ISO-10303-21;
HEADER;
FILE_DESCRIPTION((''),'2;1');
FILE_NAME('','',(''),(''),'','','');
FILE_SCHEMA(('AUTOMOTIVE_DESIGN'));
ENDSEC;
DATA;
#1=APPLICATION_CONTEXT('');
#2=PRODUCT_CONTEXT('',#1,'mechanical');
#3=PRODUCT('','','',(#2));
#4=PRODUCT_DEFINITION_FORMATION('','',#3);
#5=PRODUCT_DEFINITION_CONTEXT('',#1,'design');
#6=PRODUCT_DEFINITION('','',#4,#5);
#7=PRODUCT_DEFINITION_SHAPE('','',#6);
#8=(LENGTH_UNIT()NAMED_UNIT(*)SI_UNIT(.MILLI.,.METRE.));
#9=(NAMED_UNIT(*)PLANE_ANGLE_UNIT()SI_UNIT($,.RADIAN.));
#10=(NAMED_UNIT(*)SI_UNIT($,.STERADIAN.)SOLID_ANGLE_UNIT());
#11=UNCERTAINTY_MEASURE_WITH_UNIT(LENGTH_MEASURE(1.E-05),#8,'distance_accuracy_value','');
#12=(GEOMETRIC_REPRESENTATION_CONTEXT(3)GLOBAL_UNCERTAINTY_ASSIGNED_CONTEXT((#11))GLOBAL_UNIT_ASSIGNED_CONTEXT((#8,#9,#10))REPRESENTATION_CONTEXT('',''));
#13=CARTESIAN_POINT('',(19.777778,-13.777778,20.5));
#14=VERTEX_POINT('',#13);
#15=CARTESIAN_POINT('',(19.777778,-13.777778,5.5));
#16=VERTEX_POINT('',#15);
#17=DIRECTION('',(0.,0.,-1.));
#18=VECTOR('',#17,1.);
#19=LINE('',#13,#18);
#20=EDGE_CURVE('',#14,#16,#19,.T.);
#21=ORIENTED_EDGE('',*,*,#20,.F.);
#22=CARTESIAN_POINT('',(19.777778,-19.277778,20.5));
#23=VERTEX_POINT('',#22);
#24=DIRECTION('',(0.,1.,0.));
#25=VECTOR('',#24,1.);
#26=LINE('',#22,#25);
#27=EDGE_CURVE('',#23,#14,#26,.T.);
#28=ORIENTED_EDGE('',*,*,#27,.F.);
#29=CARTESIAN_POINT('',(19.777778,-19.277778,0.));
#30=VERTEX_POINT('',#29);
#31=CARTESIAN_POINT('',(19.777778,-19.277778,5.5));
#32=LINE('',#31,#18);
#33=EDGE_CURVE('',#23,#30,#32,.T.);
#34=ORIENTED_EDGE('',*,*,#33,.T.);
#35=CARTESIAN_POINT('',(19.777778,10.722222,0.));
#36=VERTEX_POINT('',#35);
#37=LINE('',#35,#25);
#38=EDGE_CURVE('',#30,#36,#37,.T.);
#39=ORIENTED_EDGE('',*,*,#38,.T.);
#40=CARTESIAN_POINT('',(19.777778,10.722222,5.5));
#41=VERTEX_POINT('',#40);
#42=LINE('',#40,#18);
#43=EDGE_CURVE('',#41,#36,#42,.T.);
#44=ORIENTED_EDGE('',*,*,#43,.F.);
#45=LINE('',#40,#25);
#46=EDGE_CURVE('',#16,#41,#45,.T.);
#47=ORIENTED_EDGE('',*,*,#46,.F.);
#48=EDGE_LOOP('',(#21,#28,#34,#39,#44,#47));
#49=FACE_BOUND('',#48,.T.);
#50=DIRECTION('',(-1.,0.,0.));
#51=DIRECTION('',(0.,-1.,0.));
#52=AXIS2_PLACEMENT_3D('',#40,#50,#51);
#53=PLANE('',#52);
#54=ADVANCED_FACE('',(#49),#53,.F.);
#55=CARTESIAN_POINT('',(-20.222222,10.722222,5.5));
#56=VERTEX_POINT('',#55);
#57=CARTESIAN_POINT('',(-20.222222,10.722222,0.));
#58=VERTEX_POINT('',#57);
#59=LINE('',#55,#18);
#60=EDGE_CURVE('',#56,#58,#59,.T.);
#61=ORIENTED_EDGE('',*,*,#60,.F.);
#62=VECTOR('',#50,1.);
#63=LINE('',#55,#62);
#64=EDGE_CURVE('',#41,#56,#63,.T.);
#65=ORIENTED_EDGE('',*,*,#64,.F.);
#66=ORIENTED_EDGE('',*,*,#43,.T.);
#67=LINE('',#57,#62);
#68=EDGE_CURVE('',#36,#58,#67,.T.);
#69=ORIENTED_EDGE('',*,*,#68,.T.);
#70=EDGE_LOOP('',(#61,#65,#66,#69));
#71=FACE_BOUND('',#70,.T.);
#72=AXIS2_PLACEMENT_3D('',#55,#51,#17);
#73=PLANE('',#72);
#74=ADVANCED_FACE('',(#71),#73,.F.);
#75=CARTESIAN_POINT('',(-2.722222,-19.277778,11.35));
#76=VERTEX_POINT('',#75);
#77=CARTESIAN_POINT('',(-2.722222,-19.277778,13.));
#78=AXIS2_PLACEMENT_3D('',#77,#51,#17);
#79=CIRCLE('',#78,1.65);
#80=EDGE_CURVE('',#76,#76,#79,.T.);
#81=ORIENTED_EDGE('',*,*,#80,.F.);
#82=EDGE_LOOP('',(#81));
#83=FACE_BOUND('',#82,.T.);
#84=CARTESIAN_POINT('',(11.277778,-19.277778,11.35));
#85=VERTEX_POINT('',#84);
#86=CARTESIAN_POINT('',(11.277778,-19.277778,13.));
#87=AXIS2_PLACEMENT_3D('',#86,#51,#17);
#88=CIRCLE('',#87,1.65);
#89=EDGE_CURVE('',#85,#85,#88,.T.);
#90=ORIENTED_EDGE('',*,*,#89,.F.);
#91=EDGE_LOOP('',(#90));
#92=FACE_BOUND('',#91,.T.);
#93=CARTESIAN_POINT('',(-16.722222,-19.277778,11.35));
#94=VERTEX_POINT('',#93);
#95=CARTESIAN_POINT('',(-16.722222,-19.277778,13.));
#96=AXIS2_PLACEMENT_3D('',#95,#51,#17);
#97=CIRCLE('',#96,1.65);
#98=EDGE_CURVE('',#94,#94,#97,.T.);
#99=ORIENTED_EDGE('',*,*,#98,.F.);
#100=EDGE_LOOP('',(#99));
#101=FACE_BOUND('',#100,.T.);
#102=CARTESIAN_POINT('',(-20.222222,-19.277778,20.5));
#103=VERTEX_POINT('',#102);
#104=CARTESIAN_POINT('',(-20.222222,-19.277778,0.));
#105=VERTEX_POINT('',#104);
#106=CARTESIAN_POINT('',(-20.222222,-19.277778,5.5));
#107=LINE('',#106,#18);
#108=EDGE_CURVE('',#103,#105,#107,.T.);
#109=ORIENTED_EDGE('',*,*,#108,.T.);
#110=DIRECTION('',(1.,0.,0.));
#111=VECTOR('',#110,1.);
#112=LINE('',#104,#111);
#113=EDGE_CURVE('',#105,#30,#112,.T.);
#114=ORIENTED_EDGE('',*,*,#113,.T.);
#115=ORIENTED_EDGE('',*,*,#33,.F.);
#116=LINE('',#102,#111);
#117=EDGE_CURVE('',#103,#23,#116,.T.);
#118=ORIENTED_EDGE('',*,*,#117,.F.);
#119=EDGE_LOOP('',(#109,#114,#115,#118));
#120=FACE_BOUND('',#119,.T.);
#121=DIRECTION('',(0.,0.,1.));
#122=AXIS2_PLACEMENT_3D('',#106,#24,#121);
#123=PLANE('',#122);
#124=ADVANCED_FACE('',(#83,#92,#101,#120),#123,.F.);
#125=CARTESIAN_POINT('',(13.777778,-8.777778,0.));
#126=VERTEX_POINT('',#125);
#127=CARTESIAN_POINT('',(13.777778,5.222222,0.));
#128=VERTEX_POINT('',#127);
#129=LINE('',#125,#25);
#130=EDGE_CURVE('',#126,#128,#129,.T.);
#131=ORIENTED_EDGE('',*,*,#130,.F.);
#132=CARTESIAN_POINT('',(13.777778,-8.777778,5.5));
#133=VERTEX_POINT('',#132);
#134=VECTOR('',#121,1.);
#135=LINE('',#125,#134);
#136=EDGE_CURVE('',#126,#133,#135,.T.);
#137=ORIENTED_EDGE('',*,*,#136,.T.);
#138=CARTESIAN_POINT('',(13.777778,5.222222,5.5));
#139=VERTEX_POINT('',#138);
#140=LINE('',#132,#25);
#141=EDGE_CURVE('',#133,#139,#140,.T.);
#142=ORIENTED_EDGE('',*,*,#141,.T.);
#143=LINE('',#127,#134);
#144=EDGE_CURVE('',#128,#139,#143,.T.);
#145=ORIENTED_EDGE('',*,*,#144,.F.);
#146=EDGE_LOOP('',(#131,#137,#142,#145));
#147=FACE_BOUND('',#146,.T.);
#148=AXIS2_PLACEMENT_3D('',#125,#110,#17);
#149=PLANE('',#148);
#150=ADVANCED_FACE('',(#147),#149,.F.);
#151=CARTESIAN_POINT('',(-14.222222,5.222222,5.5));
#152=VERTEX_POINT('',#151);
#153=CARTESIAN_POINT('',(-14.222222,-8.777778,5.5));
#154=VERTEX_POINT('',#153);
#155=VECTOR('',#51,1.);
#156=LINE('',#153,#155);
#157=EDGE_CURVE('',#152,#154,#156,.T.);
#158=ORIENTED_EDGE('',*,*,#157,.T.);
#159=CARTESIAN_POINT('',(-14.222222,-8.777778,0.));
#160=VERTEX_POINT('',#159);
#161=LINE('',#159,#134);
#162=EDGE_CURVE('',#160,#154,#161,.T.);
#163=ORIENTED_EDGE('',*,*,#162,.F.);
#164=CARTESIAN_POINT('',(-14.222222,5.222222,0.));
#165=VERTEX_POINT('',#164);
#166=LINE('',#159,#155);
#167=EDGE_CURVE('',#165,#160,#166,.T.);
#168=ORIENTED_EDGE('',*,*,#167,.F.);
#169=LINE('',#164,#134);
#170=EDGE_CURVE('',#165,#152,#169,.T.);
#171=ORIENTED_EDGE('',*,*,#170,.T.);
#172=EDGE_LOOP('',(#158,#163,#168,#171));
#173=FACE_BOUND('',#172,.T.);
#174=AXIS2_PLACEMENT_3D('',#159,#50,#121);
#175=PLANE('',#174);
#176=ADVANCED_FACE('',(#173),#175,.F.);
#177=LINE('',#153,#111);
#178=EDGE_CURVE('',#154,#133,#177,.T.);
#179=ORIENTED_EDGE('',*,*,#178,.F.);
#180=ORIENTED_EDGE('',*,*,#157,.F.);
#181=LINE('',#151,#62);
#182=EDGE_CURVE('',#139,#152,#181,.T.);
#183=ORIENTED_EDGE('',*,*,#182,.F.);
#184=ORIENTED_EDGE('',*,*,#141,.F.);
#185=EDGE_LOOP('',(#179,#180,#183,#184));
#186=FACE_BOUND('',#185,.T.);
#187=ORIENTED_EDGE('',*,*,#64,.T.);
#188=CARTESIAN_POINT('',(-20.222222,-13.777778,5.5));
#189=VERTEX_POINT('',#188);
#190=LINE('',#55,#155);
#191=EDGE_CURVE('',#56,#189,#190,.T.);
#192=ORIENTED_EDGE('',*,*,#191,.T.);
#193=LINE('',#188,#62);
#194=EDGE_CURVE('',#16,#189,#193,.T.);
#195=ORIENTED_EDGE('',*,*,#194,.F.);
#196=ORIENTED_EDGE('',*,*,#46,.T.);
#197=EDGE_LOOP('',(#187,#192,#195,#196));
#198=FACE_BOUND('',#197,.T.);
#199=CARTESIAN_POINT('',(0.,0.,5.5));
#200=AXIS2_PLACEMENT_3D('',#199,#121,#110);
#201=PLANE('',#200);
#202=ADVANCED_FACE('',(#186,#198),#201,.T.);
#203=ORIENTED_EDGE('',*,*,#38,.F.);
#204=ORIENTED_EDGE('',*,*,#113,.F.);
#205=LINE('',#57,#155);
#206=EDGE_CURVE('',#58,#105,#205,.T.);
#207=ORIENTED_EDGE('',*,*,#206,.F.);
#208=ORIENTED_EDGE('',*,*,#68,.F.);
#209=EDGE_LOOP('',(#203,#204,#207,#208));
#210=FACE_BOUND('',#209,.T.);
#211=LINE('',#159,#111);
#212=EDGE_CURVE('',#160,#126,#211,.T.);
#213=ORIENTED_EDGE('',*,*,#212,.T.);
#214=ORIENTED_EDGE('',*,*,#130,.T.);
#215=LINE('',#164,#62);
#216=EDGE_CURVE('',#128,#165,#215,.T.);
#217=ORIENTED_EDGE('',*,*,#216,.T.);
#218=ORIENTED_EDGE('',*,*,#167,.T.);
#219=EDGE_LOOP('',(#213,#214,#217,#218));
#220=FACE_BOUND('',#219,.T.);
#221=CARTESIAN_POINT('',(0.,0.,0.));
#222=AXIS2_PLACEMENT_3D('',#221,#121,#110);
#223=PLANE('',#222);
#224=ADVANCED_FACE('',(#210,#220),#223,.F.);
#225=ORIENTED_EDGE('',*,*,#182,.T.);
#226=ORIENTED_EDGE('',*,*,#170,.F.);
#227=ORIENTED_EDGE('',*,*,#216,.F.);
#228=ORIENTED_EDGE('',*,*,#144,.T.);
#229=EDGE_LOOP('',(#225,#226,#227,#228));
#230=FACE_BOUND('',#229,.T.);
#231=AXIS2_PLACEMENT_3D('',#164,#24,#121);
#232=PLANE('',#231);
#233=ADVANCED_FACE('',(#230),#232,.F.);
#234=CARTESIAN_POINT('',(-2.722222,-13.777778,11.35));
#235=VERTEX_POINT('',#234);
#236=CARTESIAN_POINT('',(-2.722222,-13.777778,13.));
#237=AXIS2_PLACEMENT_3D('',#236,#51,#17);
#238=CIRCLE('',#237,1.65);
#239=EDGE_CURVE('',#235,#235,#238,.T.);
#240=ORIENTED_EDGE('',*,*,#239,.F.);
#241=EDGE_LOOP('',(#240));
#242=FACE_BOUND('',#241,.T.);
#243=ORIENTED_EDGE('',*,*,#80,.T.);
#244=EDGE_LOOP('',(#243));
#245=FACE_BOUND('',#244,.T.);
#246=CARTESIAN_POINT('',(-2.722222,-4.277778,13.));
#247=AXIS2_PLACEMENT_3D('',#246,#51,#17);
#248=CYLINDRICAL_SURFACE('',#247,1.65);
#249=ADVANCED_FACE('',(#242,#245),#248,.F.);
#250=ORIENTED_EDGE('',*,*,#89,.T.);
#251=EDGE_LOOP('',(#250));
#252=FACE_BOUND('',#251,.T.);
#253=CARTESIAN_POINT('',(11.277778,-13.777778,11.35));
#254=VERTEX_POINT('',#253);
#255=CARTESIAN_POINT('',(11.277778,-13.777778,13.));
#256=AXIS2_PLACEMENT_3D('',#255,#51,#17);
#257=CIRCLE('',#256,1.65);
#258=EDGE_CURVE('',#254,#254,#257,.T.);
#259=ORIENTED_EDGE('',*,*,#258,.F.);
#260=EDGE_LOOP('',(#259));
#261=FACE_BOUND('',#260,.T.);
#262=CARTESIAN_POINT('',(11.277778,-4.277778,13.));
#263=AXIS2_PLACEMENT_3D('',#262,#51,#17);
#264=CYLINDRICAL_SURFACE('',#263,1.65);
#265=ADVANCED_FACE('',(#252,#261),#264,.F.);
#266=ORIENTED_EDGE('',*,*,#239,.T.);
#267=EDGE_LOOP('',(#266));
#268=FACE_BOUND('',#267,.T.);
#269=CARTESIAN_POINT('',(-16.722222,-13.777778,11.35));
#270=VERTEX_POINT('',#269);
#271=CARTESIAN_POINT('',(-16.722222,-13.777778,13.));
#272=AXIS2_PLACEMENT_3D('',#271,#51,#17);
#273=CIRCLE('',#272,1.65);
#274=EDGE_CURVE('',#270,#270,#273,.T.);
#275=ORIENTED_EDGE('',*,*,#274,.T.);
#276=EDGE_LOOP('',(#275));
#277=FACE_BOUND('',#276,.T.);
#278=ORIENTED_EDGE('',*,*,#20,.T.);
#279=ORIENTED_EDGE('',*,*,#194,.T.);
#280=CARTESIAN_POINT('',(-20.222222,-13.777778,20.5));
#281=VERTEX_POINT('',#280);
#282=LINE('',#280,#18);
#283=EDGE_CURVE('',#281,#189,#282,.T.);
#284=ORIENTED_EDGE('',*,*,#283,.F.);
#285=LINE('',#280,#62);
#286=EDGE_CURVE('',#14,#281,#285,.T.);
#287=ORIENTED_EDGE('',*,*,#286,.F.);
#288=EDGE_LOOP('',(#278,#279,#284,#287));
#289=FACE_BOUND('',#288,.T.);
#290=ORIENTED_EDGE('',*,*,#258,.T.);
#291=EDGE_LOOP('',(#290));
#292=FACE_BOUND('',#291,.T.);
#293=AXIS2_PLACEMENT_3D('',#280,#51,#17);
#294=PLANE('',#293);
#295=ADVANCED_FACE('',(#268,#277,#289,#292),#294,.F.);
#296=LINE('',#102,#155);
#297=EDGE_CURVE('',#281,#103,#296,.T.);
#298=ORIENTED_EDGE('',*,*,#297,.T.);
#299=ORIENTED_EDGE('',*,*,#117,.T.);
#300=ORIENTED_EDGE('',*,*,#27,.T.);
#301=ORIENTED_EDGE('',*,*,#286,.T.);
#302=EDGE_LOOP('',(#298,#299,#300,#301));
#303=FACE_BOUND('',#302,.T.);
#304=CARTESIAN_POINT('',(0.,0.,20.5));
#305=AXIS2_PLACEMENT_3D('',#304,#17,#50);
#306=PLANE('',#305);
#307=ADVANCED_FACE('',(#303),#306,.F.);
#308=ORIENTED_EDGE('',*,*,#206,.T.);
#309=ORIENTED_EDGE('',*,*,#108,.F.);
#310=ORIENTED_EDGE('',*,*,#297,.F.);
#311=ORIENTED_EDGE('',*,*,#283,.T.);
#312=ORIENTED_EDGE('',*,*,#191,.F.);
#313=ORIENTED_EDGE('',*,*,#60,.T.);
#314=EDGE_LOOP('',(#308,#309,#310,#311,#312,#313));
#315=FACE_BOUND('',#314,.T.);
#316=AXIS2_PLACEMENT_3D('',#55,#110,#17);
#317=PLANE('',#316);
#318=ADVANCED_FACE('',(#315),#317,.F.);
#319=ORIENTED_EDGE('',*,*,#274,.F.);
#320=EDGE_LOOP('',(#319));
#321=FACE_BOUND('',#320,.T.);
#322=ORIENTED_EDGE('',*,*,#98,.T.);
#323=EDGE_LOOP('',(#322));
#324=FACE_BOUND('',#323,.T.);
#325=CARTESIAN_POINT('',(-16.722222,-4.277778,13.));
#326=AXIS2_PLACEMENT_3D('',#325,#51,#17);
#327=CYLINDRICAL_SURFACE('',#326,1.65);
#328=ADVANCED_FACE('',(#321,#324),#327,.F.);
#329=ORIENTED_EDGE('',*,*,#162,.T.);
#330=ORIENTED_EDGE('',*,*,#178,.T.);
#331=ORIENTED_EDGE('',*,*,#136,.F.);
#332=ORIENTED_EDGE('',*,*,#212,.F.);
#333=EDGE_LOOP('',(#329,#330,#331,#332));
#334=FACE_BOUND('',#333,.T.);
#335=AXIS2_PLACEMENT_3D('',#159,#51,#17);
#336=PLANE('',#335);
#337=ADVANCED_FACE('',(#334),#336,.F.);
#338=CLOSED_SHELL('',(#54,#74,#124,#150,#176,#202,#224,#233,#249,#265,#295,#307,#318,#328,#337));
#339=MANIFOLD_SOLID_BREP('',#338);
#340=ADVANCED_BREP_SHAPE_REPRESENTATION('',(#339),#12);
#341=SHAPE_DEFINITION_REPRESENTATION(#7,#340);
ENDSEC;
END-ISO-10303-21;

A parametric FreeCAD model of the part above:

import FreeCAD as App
import Part
import Sketcher
Q = App.Units.Quantity


def add_polygon(sketch, points):
    """Adds a closed chain of lines whose ends are joined by coincident constraints."""
    first, n = sketch.GeometryCount, len(points)
    for a, b in zip(points, points[1:] + points[:1]):
        sketch.addGeometry(Part.LineSegment(App.Vector(*a, 0), App.Vector(*b, 0)), False)
    for i in range(n):
        sketch.addConstraint(Sketcher.Constraint("Coincident", first + i, 2, first + (i + 1) % n, 1))

doc = App.newDocument("Part")
body = doc.addObject("PartDesign::Body", "Body")

sketch1 = body.newObject("Sketcher::SketchObject", "Sketch")
sketch1.AttachmentSupport = (doc.getObject("XY_Plane"), [""])
sketch1.MapMode = "FlatFace"
add_polygon(sketch1, [(-20.222222, 10.722222), (-20.222222, -19.277778), (19.777778, -19.277778), (19.777778, 10.722222)])
sketch1.addConstraint([
    Sketcher.Constraint("Vertical", 0),
    Sketcher.Constraint("Horizontal", 1),
    Sketcher.Constraint("Vertical", 2),
    Sketcher.Constraint("Horizontal", 3),
    Sketcher.Constraint("DistanceX", 1, 1, 1, 2, Q("40 mm")),
    Sketcher.Constraint("DistanceY", 0, 2, 0, 1, Q("30 mm")),
    Sketcher.Constraint("DistanceX", 0, 2, -1, 1, Q("20.222222 mm")),
    Sketcher.Constraint("DistanceY", 0, 2, -1, 1, Q("19.277778 mm")),
])
pad1 = body.newObject("PartDesign::Pad", "Pad")
pad1.Profile = sketch1
pad1.Length = 5.5

sketch2 = body.newObject("Sketcher::SketchObject", "Sketch001")
sketch2.AttachmentSupport = (doc.getObject("XY_Plane"), [""])
sketch2.MapMode = "FlatFace"
sketch2.AttachmentOffset = App.Placement(App.Vector(0, 0, 5.5), App.Rotation())
add_polygon(sketch2, [(-14.222222, 5.222222), (-14.222222, -8.777778), (13.777778, -8.777778), (13.777778, 5.222222)])
sketch2.addConstraint([
    Sketcher.Constraint("Vertical", 0),
    Sketcher.Constraint("Horizontal", 1),
    Sketcher.Constraint("Vertical", 2),
    Sketcher.Constraint("Horizontal", 3),
    Sketcher.Constraint("DistanceX", 1, 1, 1, 2, Q("28 mm")),
    Sketcher.Constraint("DistanceY", 0, 2, 0, 1, Q("14 mm")),
    Sketcher.Constraint("DistanceX", 0, 2, -1, 1, Q("14.222222 mm")),
    Sketcher.Constraint("DistanceY", 0, 2, -1, 1, Q("8.777778 mm")),
])
pocket1 = body.newObject("PartDesign::Pocket", "Pocket")
pocket1.Profile = sketch2
pocket1.Length = 5.5

sketch3 = body.newObject("Sketcher::SketchObject", "Sketch002")
sketch3.AttachmentSupport = (doc.getObject("XY_Plane"), [""])
sketch3.MapMode = "FlatFace"
sketch3.AttachmentOffset = App.Placement(App.Vector(0, 0, 5.5), App.Rotation())
add_polygon(sketch3, [(-20.222222, -13.777778), (-20.222222, -19.277778), (19.777778, -19.277778), (19.777778, -13.777778)])
sketch3.addConstraint([
    Sketcher.Constraint("Vertical", 0),
    Sketcher.Constraint("Horizontal", 1),
    Sketcher.Constraint("Vertical", 2),
    Sketcher.Constraint("Horizontal", 3),
    Sketcher.Constraint("DistanceX", 1, 1, 1, 2, Q("40 mm")),
    Sketcher.Constraint("DistanceY", 0, 2, 0, 1, Q("5.5 mm")),
    Sketcher.Constraint("DistanceX", 0, 2, -1, 1, Q("20.222222 mm")),
    Sketcher.Constraint("DistanceY", 0, 2, -1, 1, Q("19.277778 mm")),
])
pad2 = body.newObject("PartDesign::Pad", "Pad001")
pad2.Profile = sketch3
pad2.Length = 15

sketch4 = body.newObject("Sketcher::SketchObject", "Sketch003")
sketch4.AttachmentSupport = (doc.getObject("XZ_Plane"), [""])
sketch4.MapMode = "FlatFace"
sketch4.AttachmentOffset = App.Placement(App.Vector(0, 0, 19.277778), App.Rotation())
sketch4.addGeometry([
    Part.Circle(App.Vector(-16.722222, 13, 0), App.Vector(0, 0, 1), 1.65),
    Part.Circle(App.Vector(-2.722222, 13, 0), App.Vector(0, 0, 1), 1.65),
    Part.Circle(App.Vector(11.277778, 13, 0), App.Vector(0, 0, 1), 1.65),
], False)
sketch4.addConstraint([
    Sketcher.Constraint("Equal", 0, 1),
    Sketcher.Constraint("Equal", 1, 2),
    Sketcher.Constraint("Horizontal", 0, 3, 1, 3),
    Sketcher.Constraint("Horizontal", 1, 3, 2, 3),
    Sketcher.Constraint("Diameter", 0, Q("3.3 mm")),
    Sketcher.Constraint("DistanceY", -1, 1, 0, 3, Q("13 mm")),
    Sketcher.Constraint("DistanceX", 0, 3, 1, 3, Q("14 mm")),
    Sketcher.Constraint("DistanceX", 1, 3, 2, 3, Q("14 mm")),
    Sketcher.Constraint("DistanceX", 0, 3, -1, 1, Q("16.722222 mm")),
])
pocket2 = body.newObject("PartDesign::Pocket", "Pocket001")
pocket2.Profile = sketch4
pocket2.Length = 15

doc.recompute()
